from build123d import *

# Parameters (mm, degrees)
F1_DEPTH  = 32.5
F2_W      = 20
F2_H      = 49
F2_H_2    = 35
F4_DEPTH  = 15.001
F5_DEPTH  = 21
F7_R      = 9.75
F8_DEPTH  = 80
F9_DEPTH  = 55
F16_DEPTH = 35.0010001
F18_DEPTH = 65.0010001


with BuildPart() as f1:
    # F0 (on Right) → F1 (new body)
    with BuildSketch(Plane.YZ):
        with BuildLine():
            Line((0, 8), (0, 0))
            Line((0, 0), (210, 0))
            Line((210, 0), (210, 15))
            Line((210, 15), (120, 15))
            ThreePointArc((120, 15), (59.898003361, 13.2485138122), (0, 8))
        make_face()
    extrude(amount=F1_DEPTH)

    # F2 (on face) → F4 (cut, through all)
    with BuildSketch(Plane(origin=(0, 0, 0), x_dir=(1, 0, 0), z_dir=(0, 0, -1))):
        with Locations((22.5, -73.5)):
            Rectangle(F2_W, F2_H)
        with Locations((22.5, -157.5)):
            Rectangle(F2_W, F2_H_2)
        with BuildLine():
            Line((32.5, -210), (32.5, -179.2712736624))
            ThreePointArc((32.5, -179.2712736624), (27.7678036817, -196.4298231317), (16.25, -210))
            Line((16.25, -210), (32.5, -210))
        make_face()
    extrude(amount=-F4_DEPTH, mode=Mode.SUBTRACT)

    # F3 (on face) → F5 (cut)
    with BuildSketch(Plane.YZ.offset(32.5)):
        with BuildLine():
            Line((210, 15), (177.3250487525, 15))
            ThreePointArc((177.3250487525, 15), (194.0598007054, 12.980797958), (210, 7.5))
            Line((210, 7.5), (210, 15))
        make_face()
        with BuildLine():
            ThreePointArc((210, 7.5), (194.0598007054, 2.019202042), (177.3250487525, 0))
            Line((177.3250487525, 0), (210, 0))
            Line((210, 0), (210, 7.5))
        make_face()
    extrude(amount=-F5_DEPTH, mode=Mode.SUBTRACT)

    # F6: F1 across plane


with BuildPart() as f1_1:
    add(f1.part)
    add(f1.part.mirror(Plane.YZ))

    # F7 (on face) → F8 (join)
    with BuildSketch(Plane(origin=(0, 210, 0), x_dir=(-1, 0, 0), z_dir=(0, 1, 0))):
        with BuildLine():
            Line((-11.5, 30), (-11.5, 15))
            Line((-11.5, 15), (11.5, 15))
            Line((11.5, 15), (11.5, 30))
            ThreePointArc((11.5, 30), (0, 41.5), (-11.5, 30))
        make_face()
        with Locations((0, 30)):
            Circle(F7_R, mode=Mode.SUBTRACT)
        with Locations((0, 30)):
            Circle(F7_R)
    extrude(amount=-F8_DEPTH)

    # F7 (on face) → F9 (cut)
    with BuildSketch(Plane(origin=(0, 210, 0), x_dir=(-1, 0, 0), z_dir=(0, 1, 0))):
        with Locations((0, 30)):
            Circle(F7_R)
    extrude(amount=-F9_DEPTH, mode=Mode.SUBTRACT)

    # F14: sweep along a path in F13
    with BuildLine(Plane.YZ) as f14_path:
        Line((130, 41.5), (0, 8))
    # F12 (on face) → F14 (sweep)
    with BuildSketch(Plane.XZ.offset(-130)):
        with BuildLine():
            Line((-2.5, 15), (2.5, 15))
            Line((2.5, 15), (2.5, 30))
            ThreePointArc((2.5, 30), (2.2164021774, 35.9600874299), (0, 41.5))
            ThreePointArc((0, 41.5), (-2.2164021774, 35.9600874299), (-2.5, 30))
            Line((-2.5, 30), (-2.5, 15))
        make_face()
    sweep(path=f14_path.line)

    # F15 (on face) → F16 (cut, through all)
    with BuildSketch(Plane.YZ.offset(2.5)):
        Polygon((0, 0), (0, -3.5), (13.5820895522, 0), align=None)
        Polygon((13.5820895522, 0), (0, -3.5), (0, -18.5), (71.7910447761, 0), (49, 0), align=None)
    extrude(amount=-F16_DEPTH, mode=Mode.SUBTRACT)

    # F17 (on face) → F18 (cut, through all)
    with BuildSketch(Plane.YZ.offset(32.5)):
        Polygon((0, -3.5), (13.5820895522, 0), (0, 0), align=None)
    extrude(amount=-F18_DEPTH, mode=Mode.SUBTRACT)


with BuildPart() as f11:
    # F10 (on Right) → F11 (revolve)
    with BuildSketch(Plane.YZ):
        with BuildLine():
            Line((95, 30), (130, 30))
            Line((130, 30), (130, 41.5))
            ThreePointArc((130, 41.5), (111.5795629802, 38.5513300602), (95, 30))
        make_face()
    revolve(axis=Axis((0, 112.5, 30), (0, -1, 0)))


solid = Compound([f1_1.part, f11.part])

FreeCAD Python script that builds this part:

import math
import FreeCAD as App
import Part
import Sketcher
from FreeCAD import Vector

doc = App.newDocument("Part")
body = doc.addObject("PartDesign::Body", "Body")

sketch1 = doc.addObject("Sketcher::SketchObject", "Sketch")
body.addObject(sketch1)
sketch1.AttachmentSupport = (doc.YZ_Plane, [""])
sketch1.MapMode = "FlatFace"
sketch1.addGeometry(Part.LineSegment(Vector(0, 8, 0), Vector(0, 0, 0)), False)
sketch1.addGeometry(Part.LineSegment(Vector(0, 0, 0), Vector(210, 0, 0)), False)
sketch1.addGeometry(Part.LineSegment(Vector(210, 0, 0), Vector(210, 15, 0)), False)
sketch1.addGeometry(Part.LineSegment(Vector(210, 15, 0), Vector(120, 15, 0)), False)
sketch1.addGeometry(Part.ArcOfCircle(Part.Circle(Vector(120, -1017, 0), Vector(0, 0, 1), 1032), math.radians(90), math.radians(96.68)), False)
sketch1.addConstraint(Sketcher.Constraint("Coincident", 0, 2, 1, 1))
sketch1.addConstraint(Sketcher.Constraint("Coincident", 1, 2, 2, 1))
sketch1.addConstraint(Sketcher.Constraint("Coincident", 2, 2, 3, 1))
sketch1.addConstraint(Sketcher.Constraint("Tangent", 3, 2, 4, 1))
sketch1.addConstraint(Sketcher.Constraint("Coincident", 4, 2, 0, 1))
sketch1.addConstraint(Sketcher.Constraint("Vertical", 0))
sketch1.addConstraint(Sketcher.Constraint("Horizontal", 1))
sketch1.addConstraint(Sketcher.Constraint("Vertical", 2))
sketch1.addConstraint(Sketcher.Constraint("Horizontal", 3))
sketch1.addConstraint(Sketcher.Constraint("Coincident", 0, 2, -1, 1))
sketch1.addConstraint(Sketcher.Constraint("DistanceX", 1, 1, 1, 2, 210.0))
sketch1.addConstraint(Sketcher.Constraint("DistanceX", 3, 2, 3, 1, 90.0))
sketch1.addConstraint(Sketcher.Constraint("DistanceY", 0, 2, 0, 1, 8.0))
sketch1.addConstraint(Sketcher.Constraint("DistanceY", 2, 1, 2, 2, 15.0))
pad1 = doc.addObject("PartDesign::Pad", "Pad")
body.addObject(pad1)
pad1.Profile = sketch1
pad1.Length = 32.5

sketch2 = doc.addObject("Sketcher::SketchObject", "Sketch001")
body.addObject(sketch2)
sketch2.AttachmentSupport = (doc.XY_Plane, [""])
sketch2.MapMode = "FlatFace"
sketch2.addGeometry(Part.LineSegment(Vector(12, 49, 0), Vector(12, 98, 0)), False)
sketch2.addGeometry(Part.LineSegment(Vector(12, 98, 0), Vector(32, 98, 0)), False)
sketch2.addGeometry(Part.LineSegment(Vector(32, 98, 0), Vector(32, 49, 0)), False)
sketch2.addGeometry(Part.LineSegment(Vector(32, 49, 0), Vector(12, 49, 0)), False)
sketch2.addGeometry(Part.LineSegment(Vector(12, 140, 0), Vector(12, 175, 0)), False)
sketch2.addGeometry(Part.LineSegment(Vector(12, 175, 0), Vector(32, 175, 0)), False)
sketch2.addGeometry(Part.LineSegment(Vector(32, 175, 0), Vector(32, 140, 0)), False)
sketch2.addGeometry(Part.LineSegment(Vector(32, 140, 0), Vector(12, 140, 0)), False)
sketch2.addGeometry(Part.LineSegment(Vector(32, 210, 0), Vector(32, 179, 0)), False)
sketch2.addGeometry(Part.ArcOfCircle(Part.Circle(Vector(-9, 177, 0), Vector(0, 0, 1), 41), math.radians(3), math.radians(53)), False)
sketch2.addGeometry(Part.LineSegment(Vector(16, 210, 0), Vector(32, 210, 0)), False)
sketch2.addConstraint(Sketcher.Constraint("Coincident", 0, 2, 1, 1))
sketch2.addConstraint(Sketcher.Constraint("Coincident", 1, 2, 2, 1))
sketch2.addConstraint(Sketcher.Constraint("Coincident", 2, 2, 3, 1))
sketch2.addConstraint(Sketcher.Constraint("Coincident", 3, 2, 0, 1))
sketch2.addConstraint(Sketcher.Constraint("Coincident", 4, 2, 5, 1))
sketch2.addConstraint(Sketcher.Constraint("Coincident", 5, 2, 6, 1))
sketch2.addConstraint(Sketcher.Constraint("Coincident", 6, 2, 7, 1))
sketch2.addConstraint(Sketcher.Constraint("Coincident", 7, 2, 4, 1))
sketch2.addConstraint(Sketcher.Constraint("Coincident", 8, 2, 9, 1))
sketch2.addConstraint(Sketcher.Constraint("Coincident", 9, 2, 10, 1))
sketch2.addConstraint(Sketcher.Constraint("Coincident", 10, 2, 8, 1))
sketch2.addConstraint(Sketcher.Constraint("Vertical", 0))
sketch2.addConstraint(Sketcher.Constraint("Horizontal", 1))
sketch2.addConstraint(Sketcher.Constraint("Vertical", 2))
sketch2.addConstraint(Sketcher.Constraint("Horizontal", 3))
sketch2.addConstraint(Sketcher.Constraint("Vertical", 4))
sketch2.addConstraint(Sketcher.Constraint("Horizontal", 5))
sketch2.addConstraint(Sketcher.Constraint("Vertical", 6))
sketch2.addConstraint(Sketcher.Constraint("Horizontal", 7))
sketch2.addConstraint(Sketcher.Constraint("Vertical", 8))
sketch2.addConstraint(Sketcher.Constraint("Horizontal", 10))
sketch2.addConstraint(Sketcher.Constraint("Vertical", 3, 2, 4, 2))
sketch2.addConstraint(Sketcher.Constraint("Vertical", 2, 2, 5, 2))
sketch2.addConstraint(Sketcher.Constraint("Vertical", 6, 2, 8, 2))
sketch2.addConstraint(Sketcher.Constraint("DistanceX", 1, 1, 1, 2, 20.0))
sketch2.addConstraint(Sketcher.Constraint("DistanceY", 0, 1, 0, 2, 49.0))
sketch2.addConstraint(Sketcher.Constraint("DistanceY", 4, 1, 4, 2, 35.0))
sketch2.addConstraint(Sketcher.Constraint("DistanceY", -1, 1, 0, 2, 98.0))
sketch2.addConstraint(Sketcher.Constraint("DistanceY", -1, 1, 4, 2, 175.0))
sketch2.addConstraint(Sketcher.Constraint("DistanceY", -1, 1, 9, 2, 210.0))
sketch2.addConstraint(Sketcher.Constraint("DistanceX", 10, 1, 10, 2, 16.25))
sketch2.addConstraint(Sketcher.Constraint("DistanceX", -1, 1, 0, 2, 12.5))
sketch2.addConstraint(Sketcher.Constraint("Radius", 9, 41.272765))
sketch2.addConstraint(Sketcher.Constraint("DistanceY", 8, 2, 8, 1, 30.728726))
pocket1 = doc.addObject("PartDesign::Pocket", "Pocket")
body.addObject(pocket1)
pocket1.Profile = sketch2
pocket1.Type = "ThroughAll"
pocket1.Reversed = True

sketch3 = doc.addObject("Sketcher::SketchObject", "Sketch002")
body.addObject(sketch3)
sketch3.AttachmentSupport = (doc.YZ_Plane, [""])
sketch3.MapMode = "FlatFace"
sketch3.AttachmentOffset = App.Placement(Vector(0, 0, 32.5), App.Rotation())
sketch3.addGeometry(Part.LineSegment(Vector(210, 15, 0), Vector(177, 15, 0)), False)
sketch3.addGeometry(Part.ArcOfCircle(Part.Circle(Vector(176, -65, 0), Vector(0, 0, 1), 80), math.radians(65), math.radians(89)), False)
sketch3.addGeometry(Part.LineSegment(Vector(210, 8, 0), Vector(210, 15, 0)), False)
sketch3.addGeometry(Part.ArcOfCircle(Part.Circle(Vector(176, 80, 0), Vector(0, 0, 1), 80), math.radians(-89), math.radians(-65)), False)
sketch3.addGeometry(Part.LineSegment(Vector(177, 0, 0), Vector(210, 0, 0)), False)
sketch3.addGeometry(Part.LineSegment(Vector(210, 0, 0), Vector(210, 8, 0)), False)
sketch3.addConstraint(Sketcher.Constraint("Coincident", 0, 2, 1, 2))
sketch3.addConstraint(Sketcher.Constraint("Coincident", 1, 1, 2, 1))
sketch3.addConstraint(Sketcher.Constraint("Coincident", 2, 2, 0, 1))
sketch3.addConstraint(Sketcher.Constraint("Coincident", 3, 1, 4, 1))
sketch3.addConstraint(Sketcher.Constraint("Coincident", 4, 2, 5, 1))
sketch3.addConstraint(Sketcher.Constraint("Coincident", 5, 2, 3, 2))
sketch3.addConstraint(Sketcher.Constraint("Horizontal", 0))
sketch3.addConstraint(Sketcher.Constraint("Vertical", 2))
sketch3.addConstraint(Sketcher.Constraint("Horizontal", 4))
sketch3.addConstraint(Sketcher.Constraint("Vertical", 5))
sketch3.addConstraint(Sketcher.Constraint("Coincident", 5, 2, 1, 1))
sketch3.addConstraint(Sketcher.Constraint("Equal", 1, 3))
sketch3.addConstraint(Sketcher.Constraint("PointOnObject", 3, 1, -1))
sketch3.addConstraint(Sketcher.Constraint("Vertical", 1, 3, 3, 3))
sketch3.addConstraint(Sketcher.Constraint("Vertical", 0, 2, 3, 1))
sketch3.addConstraint(Sketcher.Constraint("Radius", 1, 80.0))
sketch3.addConstraint(Sketcher.Constraint("DistanceY", 2, 1, 2, 2, 7.5))
sketch3.addConstraint(Sketcher.Constraint("DistanceX", -1, 1, 1, 1, 210.0))
sketch3.addConstraint(Sketcher.Constraint("DistanceX", 0, 2, 0, 1, 32.674951))
pocket2 = doc.addObject("PartDesign::Pocket", "Pocket001")
body.addObject(pocket2)
pocket2.Profile = sketch3
pocket2.Length = 21
body2 = doc.addObject("PartDesign::Body", "Body001")
doc.recompute()

body2.BaseFeature = body
doc.recompute()

mirroring = doc.addObject("Part::Mirroring", "Mirroring")
mirroring.Source = body
mirroring.Base = Vector(0, 0, 0)
mirroring.Normal = Vector(1, 0, 0)
body3 = doc.addObject("PartDesign::Body", "Body002")
body3.BaseFeature = mirroring
boolean = doc.addObject("PartDesign::Boolean", "Boolean")
body2.addObject(boolean)
boolean.Type = "Fuse"
boolean.addObjects([body3])
doc.recompute()

sketch4 = doc.addObject("Sketcher::SketchObject", "Sketch003")
body2.addObject(sketch4)
sketch4.AttachmentSupport = (doc.getObject("XZ_Plane001"), [""])
sketch4.MapMode = "FlatFace"
sketch4.AttachmentOffset = App.Placement(Vector(0, 0, -210), App.Rotation())
sketch4.addGeometry(Part.LineSegment(Vector(12, 30, 0), Vector(12, 15, 0)), False)
sketch4.addGeometry(Part.LineSegment(Vector(12, 15, 0), Vector(-12, 15, 0)), False)
sketch4.addGeometry(Part.LineSegment(Vector(-12, 15, 0), Vector(-12, 30, 0)), False)
sketch4.addGeometry(Part.ArcOfCircle(Part.Circle(Vector(0, 30, 0), Vector(0, 0, 1), 12), math.radians(0), math.radians(180)), False)
sketch4.addConstraint(Sketcher.Constraint("Coincident", 0, 2, 1, 1))
sketch4.addConstraint(Sketcher.Constraint("Coincident", 1, 2, 2, 1))
sketch4.addConstraint(Sketcher.Constraint("Tangent", 2, 2, 3, 2))
sketch4.addConstraint(Sketcher.Constraint("Tangent", 3, 1, 0, 1))
sketch4.addConstraint(Sketcher.Constraint("Vertical", 0))
sketch4.addConstraint(Sketcher.Constraint("Horizontal", 1))
sketch4.addConstraint(Sketcher.Constraint("Vertical", 2))
sketch4.addConstraint(Sketcher.Constraint("PointOnObject", 3, 3, -2))
sketch4.addConstraint(Sketcher.Constraint("Radius", 3, 11.5))
sketch4.addConstraint(Sketcher.Constraint("DistanceY", 0, 2, 0, 1, 15.0))
sketch4.addConstraint(Sketcher.Constraint("DistanceY", -1, 1, 3, 3, 30.0))
pad2 = doc.addObject("PartDesign::Pad", "Pad001")
body2.addObject(pad2)
pad2.Profile = sketch4
pad2.Length = 80

sketch5 = doc.addObject("Sketcher::SketchObject", "Sketch004")
body2.addObject(sketch5)
sketch5.AttachmentSupport = (doc.getObject("XZ_Plane001"), [""])
sketch5.MapMode = "FlatFace"
sketch5.AttachmentOffset = App.Placement(Vector(0, 0, -210), App.Rotation())
sketch5.addGeometry(Part.Circle(Vector(0, 30, 0), Vector(0, 0, 1), 10), False)
sketch5.addConstraint(Sketcher.Constraint("PointOnObject", 0, 3, -2))
sketch5.addConstraint(Sketcher.Constraint("Diameter", 0, 19.5))
sketch5.addConstraint(Sketcher.Constraint("DistanceY", -1, 1, 0, 3, 30.0))
pocket3 = doc.addObject("PartDesign::Pocket", "Pocket002")
body2.addObject(pocket3)
pocket3.Profile = sketch5
pocket3.Length = 55
pocket3.Reversed = True

sketch6 = doc.addObject("Sketcher::SketchObject", "Sketch005")
body2.addObject(sketch6)
sketch6.AttachmentSupport = (doc.getObject("XZ_Plane001"), [""])
sketch6.MapMode = "FlatFace"
sketch6.AttachmentOffset = App.Placement(Vector(0, 0, -130), App.Rotation())
sketch6.addGeometry(Part.LineSegment(Vector(-2, 15, 0), Vector(2, 15, 0)), False)
sketch6.addGeometry(Part.LineSegment(Vector(2, 15, 0), Vector(2, 30, 0)), False)
sketch6.addGeometry(Part.ArcOfCircle(Part.Circle(Vector(-15, 32, 0), Vector(0, 0, 1), 18), math.radians(-7), math.radians(31)), False)
sketch6.addGeometry(Part.ArcOfCircle(Part.Circle(Vector(15, 32, 0), Vector(0, 0, 1), 18), math.radians(149), math.radians(187)), False)
sketch6.addGeometry(Part.LineSegment(Vector(-2, 30, 0), Vector(-2, 15, 0)), False)
sketch6.addConstraint(Sketcher.Constraint("Coincident", 0, 2, 1, 1))
sketch6.addConstraint(Sketcher.Constraint("Coincident", 1, 2, 2, 1))
sketch6.addConstraint(Sketcher.Constraint("Coincident", 2, 2, 3, 1))
sketch6.addConstraint(Sketcher.Constraint("Coincident", 3, 2, 4, 1))
sketch6.addConstraint(Sketcher.Constraint("Coincident", 4, 2, 0, 1))
sketch6.addConstraint(Sketcher.Constraint("Horizontal", 0))
sketch6.addConstraint(Sketcher.Constraint("Vertical", 1))
sketch6.addConstraint(Sketcher.Constraint("Vertical", 4))
sketch6.addConstraint(Sketcher.Constraint("Equal", 2, 3))
sketch6.addConstraint(Sketcher.Constraint("Symmetric", 2, 3, 3, 3, -2))
sketch6.addConstraint(Sketcher.Constraint("Horizontal", 1, 2, 3, 2))
sketch6.addConstraint(Sketcher.Constraint("Radius", 2, 18.0))
sketch6.addConstraint(Sketcher.Constraint("DistanceX", 0, 1, 0, 2, 5.0))
sketch6.addConstraint(Sketcher.Constraint("DistanceY", 1, 1, 1, 2, 15.0))
sketch6.addConstraint(Sketcher.Constraint("DistanceY", -1, 1, 0, 2, 15.0))
sketch6.addConstraint(Sketcher.Constraint("DistanceY", -1, 1, 2, 2, 41.5))

sketch7 = doc.addObject("Sketcher::SketchObject", "Sketch006")
body2.addObject(sketch7)
sketch7.Placement = App.Placement(Vector(0, -1.933166, 7.501838), App.Rotation(Vector(0, 0.968364472, 0.249540075), Vector(1, 0, 0), Vector(0, 0.249540075, -0.968364472), "ZXY"))
sketch7.addGeometry(Part.LineSegment(Vector(136, 0, 0), Vector(2, 0, 0)), False)
sketch7.addConstraint(Sketcher.Constraint("Horizontal", 0))
sketch7.addConstraint(Sketcher.Constraint("PointOnObject", 0, 1, -1))
sketch7.addConstraint(Sketcher.Constraint("DistanceX", 0, 2, 0, 1, 134.246974))
sketch7.addConstraint(Sketcher.Constraint("DistanceX", -1, 1, 0, 2, 1.996321))
doc.recompute()

additivepipe = doc.addObject("PartDesign::AdditivePipe", "AdditivePipe")
body2.addObject(additivepipe)
additivepipe.Profile = sketch6
additivepipe.Spine = (sketch7, ["Edge1"])

sketch8 = doc.addObject("Sketcher::SketchObject", "Sketch007")
body2.addObject(sketch8)
sketch8.AttachmentSupport = (doc.getObject("YZ_Plane001"), [""])
sketch8.MapMode = "FlatFace"
sketch8.AttachmentOffset = App.Placement(Vector(0, 0, 2.5), App.Rotation())
sketch8.addGeometry(Part.LineSegment(Vector(0, 0, 0), Vector(0, -18, 0)), False)
sketch8.addGeometry(Part.LineSegment(Vector(0, -18, 0), Vector(72, 0, 0)), False)
sketch8.addGeometry(Part.LineSegment(Vector(72, 0, 0), Vector(0, 0, 0)), False)
sketch8.addConstraint(Sketcher.Constraint("Coincident", 0, 2, 1, 1))
sketch8.addConstraint(Sketcher.Constraint("Coincident", 1, 2, 2, 1))
sketch8.addConstraint(Sketcher.Constraint("Coincident", 2, 2, 0, 1))
sketch8.addConstraint(Sketcher.Constraint("Vertical", 0))
sketch8.addConstraint(Sketcher.Constraint("Horizontal", 2))
sketch8.addConstraint(Sketcher.Constraint("Coincident", 2, 2, -1, 1))
sketch8.addConstraint(Sketcher.Constraint("DistanceY", 0, 2, 0, 1, 18.5))
sketch8.addConstraint(Sketcher.Constraint("Distance", 1, 74.136389))
pocket4 = doc.addObject("PartDesign::Pocket", "Pocket003")
body2.addObject(pocket4)
pocket4.Profile = sketch8
pocket4.Type = "ThroughAll"

sketch9 = doc.addObject("Sketcher::SketchObject", "Sketch008")
body2.addObject(sketch9)
sketch9.AttachmentSupport = (doc.getObject("YZ_Plane001"), [""])
sketch9.MapMode = "FlatFace"
sketch9.AttachmentOffset = App.Placement(Vector(0, 0, 32.5), App.Rotation())
sketch9.addGeometry(Part.LineSegment(Vector(0, -3.5, 0), Vector(13.6, 0, 0)), False)
sketch9.addGeometry(Part.LineSegment(Vector(13.6, 0, 0), Vector(0, 0, 0)), False)
sketch9.addGeometry(Part.LineSegment(Vector(0, 0, 0), Vector(0, -3.5, 0)), False)
sketch9.addConstraint(Sketcher.Constraint("Coincident", 0, 2, 1, 1))
sketch9.addConstraint(Sketcher.Constraint("Coincident", 1, 2, 2, 1))
sketch9.addConstraint(Sketcher.Constraint("Coincident", 2, 2, 0, 1))
sketch9.addConstraint(Sketcher.Constraint("Horizontal", 1))
sketch9.addConstraint(Sketcher.Constraint("Vertical", 2))
sketch9.addConstraint(Sketcher.Constraint("Coincident", 1, 2, -1, 1))
sketch9.addConstraint(Sketcher.Constraint("DistanceY", 2, 2, 2, 1, 3.5))
sketch9.addConstraint(Sketcher.Constraint("DistanceX", 1, 2, 1, 1, 13.58209))
pocket5 = doc.addObject("PartDesign::Pocket", "Pocket004")
body2.addObject(pocket5)
pocket5.Profile = sketch9
pocket5.Type = "ThroughAll"
body4 = doc.addObject("PartDesign::Body", "Body003")

sketch10 = doc.addObject("Sketcher::SketchObject", "Sketch009")
body4.addObject(sketch10)
sketch10.AttachmentSupport = (doc.getObject("YZ_Plane003"), [""])
sketch10.MapMode = "FlatFace"
sketch10.addGeometry(Part.LineSegment(Vector(95, 30, 0), Vector(130, 30, 0)), False)
sketch10.addGeometry(Part.LineSegment(Vector(130, 30, 0), Vector(130, 42, 0)), False)
sketch10.addGeometry(Part.ArcOfCircle(Part.Circle(Vector(130, -18, 0), Vector(0, 0, 1), 59), math.radians(90), math.radians(126)), False)
sketch10.addGeometry(Part.LineSegment(Vector(130, 30, 0), Vector(95, 30, 0)), True)
sketch10.addConstraint(Sketcher.Constraint("Coincident", 0, 2, 1, 1))
sketch10.addConstraint(Sketcher.Constraint("Coincident", 1, 2, 2, 1))
sketch10.addConstraint(Sketcher.Constraint("Coincident", 2, 2, 0, 1))
sketch10.addConstraint(Sketcher.Constraint("Horizontal", 0))
sketch10.addConstraint(Sketcher.Constraint("Vertical", 1))
sketch10.addConstraint(Sketcher.Constraint("Horizontal", 3))
sketch10.addConstraint(Sketcher.Constraint("Coincident", 3, 1, 0, 2))
sketch10.addConstraint(Sketcher.Constraint("Vertical", 2, 3, 0, 2))
sketch10.addConstraint(Sketcher.Constraint("Equal", 0, 3))
sketch10.addConstraint(Sketcher.Constraint("DistanceX", 0, 1, 0, 2, 35.0))
sketch10.addConstraint(Sketcher.Constraint("DistanceY", 1, 1, 1, 2, 11.5))
sketch10.addConstraint(Sketcher.Constraint("DistanceX", -1, 1, 2, 3, 130.0))
sketch10.addConstraint(Sketcher.Constraint("DistanceY", -1, 1, 0, 2, 30.0))
revolution = doc.addObject("PartDesign::Revolution", "Revolution")
body4.addObject(revolution)
revolution.Profile = sketch10
revolution.ReferenceAxis = (sketch10, ["Axis0"])
revolution.Angle = 360
mirroring.Visibility = False

doc.recompute()
